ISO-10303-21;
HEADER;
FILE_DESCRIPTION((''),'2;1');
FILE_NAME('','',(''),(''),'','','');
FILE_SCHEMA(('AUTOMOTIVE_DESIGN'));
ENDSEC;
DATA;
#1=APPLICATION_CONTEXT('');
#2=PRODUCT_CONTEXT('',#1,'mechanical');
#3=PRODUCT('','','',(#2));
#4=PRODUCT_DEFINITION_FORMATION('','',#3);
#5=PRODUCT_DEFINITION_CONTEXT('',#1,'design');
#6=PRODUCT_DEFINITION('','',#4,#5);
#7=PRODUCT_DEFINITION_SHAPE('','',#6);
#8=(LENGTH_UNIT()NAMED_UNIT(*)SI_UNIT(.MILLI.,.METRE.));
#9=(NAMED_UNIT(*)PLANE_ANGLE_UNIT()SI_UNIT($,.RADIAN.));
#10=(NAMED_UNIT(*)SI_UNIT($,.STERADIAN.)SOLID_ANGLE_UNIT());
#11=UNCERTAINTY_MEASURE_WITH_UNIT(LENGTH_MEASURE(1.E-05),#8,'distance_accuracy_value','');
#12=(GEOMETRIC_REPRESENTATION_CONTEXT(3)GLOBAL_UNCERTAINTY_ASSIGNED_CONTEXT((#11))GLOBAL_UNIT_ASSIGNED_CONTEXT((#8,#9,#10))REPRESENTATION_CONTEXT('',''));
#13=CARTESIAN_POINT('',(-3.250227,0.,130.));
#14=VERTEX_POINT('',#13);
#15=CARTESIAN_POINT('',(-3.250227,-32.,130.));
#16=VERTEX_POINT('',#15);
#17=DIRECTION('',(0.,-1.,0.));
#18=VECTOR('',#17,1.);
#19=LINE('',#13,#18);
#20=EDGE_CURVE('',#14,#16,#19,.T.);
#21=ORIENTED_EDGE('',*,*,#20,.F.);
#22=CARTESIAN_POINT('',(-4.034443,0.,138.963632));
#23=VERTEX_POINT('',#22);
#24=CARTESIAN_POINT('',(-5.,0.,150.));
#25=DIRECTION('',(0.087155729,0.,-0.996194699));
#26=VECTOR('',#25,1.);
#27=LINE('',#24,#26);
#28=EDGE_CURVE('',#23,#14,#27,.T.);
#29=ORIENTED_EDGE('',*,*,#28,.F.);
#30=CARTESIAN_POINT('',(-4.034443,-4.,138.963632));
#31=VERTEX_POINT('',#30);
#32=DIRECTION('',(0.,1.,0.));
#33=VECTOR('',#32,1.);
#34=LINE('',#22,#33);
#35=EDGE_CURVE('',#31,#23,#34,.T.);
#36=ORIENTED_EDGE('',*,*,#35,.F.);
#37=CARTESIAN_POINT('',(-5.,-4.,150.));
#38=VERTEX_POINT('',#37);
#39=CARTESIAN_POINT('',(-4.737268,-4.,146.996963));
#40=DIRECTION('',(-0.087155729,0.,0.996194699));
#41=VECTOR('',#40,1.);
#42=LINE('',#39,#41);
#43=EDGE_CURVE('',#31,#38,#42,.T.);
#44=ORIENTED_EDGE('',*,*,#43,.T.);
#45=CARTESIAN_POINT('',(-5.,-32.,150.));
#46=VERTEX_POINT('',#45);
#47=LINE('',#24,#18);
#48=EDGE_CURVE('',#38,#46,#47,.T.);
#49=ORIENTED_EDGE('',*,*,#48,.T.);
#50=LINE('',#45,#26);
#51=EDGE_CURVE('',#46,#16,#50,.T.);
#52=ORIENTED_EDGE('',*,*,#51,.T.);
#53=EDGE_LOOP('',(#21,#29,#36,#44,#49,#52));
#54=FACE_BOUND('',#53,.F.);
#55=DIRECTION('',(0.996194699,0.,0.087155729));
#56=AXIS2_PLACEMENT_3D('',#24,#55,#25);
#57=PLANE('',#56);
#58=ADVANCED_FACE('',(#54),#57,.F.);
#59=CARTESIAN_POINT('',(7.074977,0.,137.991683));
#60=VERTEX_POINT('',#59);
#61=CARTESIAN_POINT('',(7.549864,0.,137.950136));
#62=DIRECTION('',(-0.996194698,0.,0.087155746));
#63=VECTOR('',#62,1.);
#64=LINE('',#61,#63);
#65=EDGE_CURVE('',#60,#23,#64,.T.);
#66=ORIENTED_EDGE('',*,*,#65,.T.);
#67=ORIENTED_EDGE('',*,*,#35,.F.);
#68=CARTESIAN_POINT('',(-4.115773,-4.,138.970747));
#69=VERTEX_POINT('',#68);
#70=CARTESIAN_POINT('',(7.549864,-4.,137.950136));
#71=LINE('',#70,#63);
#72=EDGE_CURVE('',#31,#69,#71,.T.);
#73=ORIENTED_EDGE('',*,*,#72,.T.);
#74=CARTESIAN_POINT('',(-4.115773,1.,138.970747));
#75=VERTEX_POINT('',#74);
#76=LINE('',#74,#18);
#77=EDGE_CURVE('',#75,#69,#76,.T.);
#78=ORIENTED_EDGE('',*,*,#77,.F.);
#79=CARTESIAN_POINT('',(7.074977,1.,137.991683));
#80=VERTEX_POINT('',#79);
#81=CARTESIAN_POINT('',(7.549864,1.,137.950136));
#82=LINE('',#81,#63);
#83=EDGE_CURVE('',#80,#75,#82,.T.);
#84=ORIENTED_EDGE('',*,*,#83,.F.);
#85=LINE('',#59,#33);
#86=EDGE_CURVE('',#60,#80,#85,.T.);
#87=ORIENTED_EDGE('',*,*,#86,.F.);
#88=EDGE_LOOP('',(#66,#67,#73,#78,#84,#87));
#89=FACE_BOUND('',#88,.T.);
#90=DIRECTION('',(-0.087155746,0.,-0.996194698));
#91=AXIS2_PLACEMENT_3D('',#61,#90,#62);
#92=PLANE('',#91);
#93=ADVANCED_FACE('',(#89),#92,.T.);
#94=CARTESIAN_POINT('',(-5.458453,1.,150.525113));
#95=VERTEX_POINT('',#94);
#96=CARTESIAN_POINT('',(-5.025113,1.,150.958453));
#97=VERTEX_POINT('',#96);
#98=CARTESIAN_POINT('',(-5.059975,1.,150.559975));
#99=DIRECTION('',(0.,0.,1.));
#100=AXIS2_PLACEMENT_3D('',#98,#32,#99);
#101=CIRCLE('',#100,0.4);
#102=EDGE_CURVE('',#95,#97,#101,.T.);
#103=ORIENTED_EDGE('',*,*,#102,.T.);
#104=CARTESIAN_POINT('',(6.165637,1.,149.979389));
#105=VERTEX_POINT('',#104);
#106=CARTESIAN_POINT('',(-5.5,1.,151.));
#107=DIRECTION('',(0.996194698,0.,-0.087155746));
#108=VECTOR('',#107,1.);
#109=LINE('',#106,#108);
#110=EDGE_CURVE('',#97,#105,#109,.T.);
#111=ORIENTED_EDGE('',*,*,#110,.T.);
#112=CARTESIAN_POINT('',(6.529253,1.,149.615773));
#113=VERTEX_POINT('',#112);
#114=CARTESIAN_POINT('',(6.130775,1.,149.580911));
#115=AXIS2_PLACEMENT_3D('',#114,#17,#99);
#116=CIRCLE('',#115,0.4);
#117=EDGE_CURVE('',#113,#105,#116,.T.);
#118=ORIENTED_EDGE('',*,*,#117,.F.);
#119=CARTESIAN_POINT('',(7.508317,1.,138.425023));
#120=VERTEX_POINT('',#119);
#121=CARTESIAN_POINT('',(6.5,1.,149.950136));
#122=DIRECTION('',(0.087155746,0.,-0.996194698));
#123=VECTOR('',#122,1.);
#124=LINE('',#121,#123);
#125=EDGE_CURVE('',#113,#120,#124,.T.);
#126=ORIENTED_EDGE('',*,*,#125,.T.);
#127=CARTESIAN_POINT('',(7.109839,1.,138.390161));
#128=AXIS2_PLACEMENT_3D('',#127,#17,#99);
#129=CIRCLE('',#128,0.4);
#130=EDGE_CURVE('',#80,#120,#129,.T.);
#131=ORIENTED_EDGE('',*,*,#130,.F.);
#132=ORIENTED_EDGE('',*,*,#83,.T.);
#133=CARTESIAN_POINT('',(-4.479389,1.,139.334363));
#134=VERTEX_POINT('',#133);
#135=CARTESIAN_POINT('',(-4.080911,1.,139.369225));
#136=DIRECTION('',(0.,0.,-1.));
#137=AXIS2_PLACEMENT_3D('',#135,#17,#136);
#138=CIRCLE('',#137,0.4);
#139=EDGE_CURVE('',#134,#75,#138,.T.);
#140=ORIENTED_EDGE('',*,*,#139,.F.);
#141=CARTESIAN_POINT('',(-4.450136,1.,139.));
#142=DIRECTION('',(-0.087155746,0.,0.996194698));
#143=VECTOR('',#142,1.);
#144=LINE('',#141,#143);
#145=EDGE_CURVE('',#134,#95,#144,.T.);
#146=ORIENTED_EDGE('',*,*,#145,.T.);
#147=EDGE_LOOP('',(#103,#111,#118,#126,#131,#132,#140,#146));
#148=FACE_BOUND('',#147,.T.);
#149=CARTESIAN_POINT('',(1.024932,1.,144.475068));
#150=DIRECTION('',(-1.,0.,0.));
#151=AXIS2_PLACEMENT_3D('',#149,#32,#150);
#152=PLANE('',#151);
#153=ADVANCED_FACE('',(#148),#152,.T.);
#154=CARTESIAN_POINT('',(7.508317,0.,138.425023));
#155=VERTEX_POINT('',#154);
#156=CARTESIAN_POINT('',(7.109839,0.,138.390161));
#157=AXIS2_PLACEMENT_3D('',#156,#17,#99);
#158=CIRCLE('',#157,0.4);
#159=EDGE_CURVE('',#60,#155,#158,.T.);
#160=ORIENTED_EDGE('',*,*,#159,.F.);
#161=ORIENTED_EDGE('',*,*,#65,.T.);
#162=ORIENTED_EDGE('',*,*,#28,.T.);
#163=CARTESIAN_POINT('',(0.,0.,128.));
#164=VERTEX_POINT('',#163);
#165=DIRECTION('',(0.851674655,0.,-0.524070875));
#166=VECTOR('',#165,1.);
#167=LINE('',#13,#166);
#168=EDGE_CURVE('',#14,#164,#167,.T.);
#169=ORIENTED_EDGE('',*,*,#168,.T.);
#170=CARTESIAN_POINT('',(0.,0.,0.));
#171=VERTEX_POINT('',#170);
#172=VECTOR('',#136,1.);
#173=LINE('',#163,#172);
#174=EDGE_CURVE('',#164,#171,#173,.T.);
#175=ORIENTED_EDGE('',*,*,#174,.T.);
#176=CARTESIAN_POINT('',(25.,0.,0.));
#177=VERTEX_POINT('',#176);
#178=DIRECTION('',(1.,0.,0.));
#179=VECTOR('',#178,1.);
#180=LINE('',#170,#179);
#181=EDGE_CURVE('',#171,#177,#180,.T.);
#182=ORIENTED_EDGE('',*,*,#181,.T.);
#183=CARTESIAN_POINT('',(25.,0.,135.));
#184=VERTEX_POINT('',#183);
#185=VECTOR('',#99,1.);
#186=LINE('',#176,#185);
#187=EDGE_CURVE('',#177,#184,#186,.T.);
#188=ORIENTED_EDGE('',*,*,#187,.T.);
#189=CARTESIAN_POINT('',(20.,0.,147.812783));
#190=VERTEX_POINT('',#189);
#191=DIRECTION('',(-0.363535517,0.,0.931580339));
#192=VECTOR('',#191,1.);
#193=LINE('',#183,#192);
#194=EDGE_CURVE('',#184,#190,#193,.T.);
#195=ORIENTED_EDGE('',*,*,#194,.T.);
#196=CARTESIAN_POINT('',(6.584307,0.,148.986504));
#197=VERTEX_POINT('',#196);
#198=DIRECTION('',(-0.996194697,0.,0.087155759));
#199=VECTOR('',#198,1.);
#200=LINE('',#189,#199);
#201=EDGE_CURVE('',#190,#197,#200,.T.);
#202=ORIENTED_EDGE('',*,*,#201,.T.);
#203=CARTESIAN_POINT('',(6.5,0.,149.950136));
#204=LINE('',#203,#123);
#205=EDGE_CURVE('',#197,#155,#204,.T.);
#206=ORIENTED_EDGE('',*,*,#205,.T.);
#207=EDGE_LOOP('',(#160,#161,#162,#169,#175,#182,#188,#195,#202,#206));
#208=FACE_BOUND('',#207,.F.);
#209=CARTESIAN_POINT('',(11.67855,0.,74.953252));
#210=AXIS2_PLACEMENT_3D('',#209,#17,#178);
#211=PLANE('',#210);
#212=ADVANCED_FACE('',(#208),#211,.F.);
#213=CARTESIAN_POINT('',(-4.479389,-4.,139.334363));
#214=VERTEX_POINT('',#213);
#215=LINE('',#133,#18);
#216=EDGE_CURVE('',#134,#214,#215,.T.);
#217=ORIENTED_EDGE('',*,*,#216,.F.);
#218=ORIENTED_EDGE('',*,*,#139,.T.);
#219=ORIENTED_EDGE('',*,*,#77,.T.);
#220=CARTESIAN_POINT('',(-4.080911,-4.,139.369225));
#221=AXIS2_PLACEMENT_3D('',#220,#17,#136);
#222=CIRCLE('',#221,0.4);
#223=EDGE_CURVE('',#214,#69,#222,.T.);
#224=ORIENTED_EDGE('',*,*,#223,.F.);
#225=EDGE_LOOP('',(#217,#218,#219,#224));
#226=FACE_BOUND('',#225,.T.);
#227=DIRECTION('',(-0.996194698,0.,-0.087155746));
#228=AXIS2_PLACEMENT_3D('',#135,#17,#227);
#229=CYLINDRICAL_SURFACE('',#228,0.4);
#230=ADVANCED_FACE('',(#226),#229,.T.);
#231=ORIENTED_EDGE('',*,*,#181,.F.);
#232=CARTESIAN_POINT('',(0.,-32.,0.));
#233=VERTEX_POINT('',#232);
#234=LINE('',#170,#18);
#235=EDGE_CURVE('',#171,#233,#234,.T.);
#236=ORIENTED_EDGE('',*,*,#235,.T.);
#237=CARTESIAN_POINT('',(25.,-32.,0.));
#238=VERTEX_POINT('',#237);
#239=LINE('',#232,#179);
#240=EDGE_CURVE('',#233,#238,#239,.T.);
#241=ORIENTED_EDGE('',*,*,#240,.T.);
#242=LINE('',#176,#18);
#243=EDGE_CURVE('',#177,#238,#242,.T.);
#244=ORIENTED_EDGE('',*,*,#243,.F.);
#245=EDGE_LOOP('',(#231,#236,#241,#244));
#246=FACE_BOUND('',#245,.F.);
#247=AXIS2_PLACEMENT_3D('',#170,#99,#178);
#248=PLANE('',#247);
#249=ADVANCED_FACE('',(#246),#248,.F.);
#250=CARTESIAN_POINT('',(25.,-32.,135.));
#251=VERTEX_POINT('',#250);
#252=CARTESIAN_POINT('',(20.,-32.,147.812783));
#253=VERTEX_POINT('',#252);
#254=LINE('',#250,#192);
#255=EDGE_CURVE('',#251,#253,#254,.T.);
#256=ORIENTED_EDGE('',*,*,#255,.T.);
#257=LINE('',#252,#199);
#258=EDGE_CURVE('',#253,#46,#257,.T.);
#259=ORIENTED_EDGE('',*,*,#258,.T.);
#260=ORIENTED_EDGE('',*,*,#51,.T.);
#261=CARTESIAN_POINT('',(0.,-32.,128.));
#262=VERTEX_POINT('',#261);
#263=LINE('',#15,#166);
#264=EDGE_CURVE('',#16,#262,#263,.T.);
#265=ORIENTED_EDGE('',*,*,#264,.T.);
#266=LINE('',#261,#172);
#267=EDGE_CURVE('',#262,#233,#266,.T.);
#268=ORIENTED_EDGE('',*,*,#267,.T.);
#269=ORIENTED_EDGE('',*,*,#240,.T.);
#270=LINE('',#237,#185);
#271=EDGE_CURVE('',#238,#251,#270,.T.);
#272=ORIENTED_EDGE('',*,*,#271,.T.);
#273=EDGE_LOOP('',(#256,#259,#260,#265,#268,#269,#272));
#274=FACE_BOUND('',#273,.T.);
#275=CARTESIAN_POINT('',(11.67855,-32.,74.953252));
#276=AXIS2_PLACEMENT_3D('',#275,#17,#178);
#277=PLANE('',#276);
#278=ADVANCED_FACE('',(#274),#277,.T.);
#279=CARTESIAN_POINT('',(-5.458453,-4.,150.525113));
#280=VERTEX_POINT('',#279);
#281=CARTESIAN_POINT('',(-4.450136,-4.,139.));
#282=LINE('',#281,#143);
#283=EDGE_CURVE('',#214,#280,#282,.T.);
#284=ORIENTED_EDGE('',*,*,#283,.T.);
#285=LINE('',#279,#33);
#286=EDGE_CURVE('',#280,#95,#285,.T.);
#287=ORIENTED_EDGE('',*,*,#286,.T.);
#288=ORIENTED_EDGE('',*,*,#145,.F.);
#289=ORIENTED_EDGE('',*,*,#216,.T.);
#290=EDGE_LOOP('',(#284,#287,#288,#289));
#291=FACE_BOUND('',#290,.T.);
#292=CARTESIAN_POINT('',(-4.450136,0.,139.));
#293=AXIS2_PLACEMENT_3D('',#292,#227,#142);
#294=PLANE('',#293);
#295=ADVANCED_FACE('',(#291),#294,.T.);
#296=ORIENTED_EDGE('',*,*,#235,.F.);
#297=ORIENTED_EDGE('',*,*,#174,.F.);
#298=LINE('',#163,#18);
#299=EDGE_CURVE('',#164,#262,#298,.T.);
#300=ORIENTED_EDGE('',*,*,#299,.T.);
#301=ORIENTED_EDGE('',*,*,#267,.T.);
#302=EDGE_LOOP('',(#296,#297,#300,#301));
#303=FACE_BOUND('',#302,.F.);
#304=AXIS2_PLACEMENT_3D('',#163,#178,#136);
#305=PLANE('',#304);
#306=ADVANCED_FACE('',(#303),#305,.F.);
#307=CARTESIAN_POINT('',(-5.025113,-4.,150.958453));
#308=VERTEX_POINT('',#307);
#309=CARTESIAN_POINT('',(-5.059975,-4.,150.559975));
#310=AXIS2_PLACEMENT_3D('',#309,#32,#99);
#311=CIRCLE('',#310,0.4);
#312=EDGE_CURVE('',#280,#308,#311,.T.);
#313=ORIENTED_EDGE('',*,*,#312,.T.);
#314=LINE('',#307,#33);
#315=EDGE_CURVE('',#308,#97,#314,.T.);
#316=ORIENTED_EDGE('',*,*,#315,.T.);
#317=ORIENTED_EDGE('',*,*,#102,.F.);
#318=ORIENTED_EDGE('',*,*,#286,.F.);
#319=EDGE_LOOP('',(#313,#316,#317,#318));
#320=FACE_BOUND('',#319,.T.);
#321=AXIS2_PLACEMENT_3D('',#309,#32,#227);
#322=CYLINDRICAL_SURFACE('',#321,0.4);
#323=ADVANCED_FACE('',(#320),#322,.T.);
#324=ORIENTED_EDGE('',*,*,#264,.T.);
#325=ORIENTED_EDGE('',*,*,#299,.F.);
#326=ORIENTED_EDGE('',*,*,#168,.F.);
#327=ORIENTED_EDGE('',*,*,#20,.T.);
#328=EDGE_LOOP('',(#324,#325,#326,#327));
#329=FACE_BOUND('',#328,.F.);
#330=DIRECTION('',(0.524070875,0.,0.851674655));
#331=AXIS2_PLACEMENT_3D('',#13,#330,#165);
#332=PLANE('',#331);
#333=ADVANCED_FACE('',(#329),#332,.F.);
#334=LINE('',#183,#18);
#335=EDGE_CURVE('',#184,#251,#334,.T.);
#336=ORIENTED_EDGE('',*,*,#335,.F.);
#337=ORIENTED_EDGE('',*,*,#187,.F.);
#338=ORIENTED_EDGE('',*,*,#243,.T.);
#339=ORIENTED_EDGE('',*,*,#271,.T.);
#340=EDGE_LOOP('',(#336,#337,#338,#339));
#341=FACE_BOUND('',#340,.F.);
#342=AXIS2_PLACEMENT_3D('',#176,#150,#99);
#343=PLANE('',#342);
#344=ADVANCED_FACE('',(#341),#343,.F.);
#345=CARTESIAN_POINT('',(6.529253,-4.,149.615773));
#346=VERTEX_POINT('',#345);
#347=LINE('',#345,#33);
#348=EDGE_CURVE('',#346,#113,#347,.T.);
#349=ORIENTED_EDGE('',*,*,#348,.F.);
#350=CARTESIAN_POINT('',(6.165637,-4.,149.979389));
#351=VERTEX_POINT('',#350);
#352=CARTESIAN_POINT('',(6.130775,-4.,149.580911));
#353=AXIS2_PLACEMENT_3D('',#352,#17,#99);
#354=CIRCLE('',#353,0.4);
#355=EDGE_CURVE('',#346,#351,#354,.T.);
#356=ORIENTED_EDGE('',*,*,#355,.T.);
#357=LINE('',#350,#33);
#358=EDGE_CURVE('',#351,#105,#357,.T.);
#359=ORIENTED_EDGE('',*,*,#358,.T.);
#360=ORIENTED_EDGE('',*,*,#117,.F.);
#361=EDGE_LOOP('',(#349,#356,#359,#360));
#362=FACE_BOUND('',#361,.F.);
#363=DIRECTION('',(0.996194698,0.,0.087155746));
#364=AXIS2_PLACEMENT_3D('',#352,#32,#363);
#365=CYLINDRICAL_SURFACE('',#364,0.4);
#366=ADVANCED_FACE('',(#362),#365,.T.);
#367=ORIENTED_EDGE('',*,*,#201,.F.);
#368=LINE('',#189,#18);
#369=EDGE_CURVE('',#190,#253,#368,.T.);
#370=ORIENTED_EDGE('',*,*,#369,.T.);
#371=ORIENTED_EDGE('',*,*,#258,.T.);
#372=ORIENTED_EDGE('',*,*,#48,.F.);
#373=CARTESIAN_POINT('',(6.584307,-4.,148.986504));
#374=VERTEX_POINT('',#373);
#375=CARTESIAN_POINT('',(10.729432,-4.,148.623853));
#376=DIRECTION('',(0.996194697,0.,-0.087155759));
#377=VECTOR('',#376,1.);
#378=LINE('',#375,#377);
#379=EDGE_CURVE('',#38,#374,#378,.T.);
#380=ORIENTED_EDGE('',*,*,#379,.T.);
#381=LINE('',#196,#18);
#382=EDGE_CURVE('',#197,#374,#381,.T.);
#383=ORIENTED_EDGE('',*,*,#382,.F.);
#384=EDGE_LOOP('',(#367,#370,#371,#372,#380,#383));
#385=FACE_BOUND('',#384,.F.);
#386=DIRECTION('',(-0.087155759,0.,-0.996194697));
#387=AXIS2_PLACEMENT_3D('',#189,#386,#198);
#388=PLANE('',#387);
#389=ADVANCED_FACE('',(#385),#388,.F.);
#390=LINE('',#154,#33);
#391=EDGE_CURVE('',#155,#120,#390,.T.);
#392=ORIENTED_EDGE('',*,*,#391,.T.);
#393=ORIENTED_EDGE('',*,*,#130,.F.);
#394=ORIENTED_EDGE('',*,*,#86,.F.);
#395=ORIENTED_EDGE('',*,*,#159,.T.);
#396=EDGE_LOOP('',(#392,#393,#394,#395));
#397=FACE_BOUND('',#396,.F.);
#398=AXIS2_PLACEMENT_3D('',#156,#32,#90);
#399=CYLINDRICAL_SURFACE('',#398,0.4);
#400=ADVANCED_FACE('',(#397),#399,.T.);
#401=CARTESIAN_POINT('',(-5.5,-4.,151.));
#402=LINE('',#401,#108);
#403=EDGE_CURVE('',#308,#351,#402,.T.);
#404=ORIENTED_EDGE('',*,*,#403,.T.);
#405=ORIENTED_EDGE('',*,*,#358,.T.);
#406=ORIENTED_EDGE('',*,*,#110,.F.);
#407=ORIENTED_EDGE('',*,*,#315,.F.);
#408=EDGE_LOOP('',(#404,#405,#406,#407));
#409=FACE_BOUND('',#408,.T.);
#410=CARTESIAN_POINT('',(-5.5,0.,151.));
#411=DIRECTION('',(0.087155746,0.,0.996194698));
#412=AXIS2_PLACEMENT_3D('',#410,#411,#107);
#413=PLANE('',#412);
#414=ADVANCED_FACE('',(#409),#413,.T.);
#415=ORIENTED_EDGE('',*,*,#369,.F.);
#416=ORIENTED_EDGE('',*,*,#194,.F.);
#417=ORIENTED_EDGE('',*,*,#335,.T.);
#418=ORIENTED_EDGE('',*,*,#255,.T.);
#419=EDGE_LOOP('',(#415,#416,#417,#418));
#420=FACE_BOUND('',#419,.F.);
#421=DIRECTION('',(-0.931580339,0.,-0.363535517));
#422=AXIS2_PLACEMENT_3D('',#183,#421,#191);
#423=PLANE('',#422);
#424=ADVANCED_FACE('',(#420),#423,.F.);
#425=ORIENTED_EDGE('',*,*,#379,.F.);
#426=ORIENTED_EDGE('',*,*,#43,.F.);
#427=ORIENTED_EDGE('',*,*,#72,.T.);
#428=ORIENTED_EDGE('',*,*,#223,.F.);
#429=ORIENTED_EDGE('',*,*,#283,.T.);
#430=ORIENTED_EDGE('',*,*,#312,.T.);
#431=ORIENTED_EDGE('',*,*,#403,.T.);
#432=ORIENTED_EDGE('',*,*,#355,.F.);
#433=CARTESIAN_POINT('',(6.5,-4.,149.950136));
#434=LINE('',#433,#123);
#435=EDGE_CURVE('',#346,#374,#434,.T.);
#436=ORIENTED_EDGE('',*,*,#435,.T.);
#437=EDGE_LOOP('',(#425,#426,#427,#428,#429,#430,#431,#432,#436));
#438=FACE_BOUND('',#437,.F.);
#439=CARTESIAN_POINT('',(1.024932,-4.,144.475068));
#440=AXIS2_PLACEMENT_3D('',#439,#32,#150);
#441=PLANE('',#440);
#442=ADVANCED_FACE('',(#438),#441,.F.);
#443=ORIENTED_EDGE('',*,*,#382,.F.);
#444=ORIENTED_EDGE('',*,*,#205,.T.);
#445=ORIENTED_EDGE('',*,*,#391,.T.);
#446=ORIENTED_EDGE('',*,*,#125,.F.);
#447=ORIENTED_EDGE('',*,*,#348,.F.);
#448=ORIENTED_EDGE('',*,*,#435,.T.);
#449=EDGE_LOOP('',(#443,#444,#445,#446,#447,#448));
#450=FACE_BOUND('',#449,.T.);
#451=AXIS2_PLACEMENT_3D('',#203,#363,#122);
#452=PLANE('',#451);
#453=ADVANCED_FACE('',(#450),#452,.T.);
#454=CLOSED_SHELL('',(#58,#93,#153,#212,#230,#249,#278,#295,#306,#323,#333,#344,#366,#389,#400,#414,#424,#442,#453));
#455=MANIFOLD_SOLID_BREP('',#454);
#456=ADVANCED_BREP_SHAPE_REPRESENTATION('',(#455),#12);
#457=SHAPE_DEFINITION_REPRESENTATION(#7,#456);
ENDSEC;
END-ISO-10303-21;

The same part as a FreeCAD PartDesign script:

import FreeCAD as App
import Part
import Sketcher
Q = App.Units.Quantity


def edges_at(feature, points):
    """Names of the edges that pass closest to the given points."""
    edges = feature.Shape.Edges
    near = lambda p: min(range(len(edges)), key=lambda i: edges[i].distToShape(Part.Vertex(*p))[0])
    return sorted({f"Edge{near(p) + 1}" for p in points})

doc = App.newDocument("Part")
body = doc.addObject("PartDesign::Body", "Body")

# Sketch on XZ plane
sketch1 = body.newObject("Sketcher::SketchObject", "Sketch")
sketch1.AttachmentSupport = (doc.getObject("XZ_Plane"), [""])
sketch1.MapMode = "FlatFace"
sketch1.addGeometry([
    Part.LineSegment(App.Vector(0, 128, 0), App.Vector(0, 0, 0)),  # 0
    Part.LineSegment(App.Vector(0, 0, 0), App.Vector(25, 0, 0)),  # 1
    Part.LineSegment(App.Vector(25, 0, 0), App.Vector(25, 135, 0)),  # 2
    Part.LineSegment(App.Vector(25, 135, 0), App.Vector(20, 147.8, 0)),  # 3
    Part.LineSegment(App.Vector(20, 147.8, 0), App.Vector(-5, 150, 0)),  # 4
    Part.LineSegment(App.Vector(-5, 150, 0), App.Vector(-3.3, 130, 0)),  # 5
    Part.LineSegment(App.Vector(-3.3, 130, 0), App.Vector(0, 128, 0)),  # 6
], False)
sketch1.addConstraint([
    Sketcher.Constraint("Coincident", 0, 2, 1, 1),
    Sketcher.Constraint("Coincident", 1, 2, 2, 1),
    Sketcher.Constraint("Coincident", 2, 2, 3, 1),
    Sketcher.Constraint("Coincident", 3, 2, 4, 1),
    Sketcher.Constraint("Coincident", 4, 2, 5, 1),
    Sketcher.Constraint("Coincident", 5, 2, 6, 1),
    Sketcher.Constraint("Coincident", 6, 2, 0, 1),
    Sketcher.Constraint("Vertical", 0),
    Sketcher.Constraint("Horizontal", 1),
    Sketcher.Constraint("Vertical", 2),
    Sketcher.Constraint("Coincident", 0, 2, -1, 1),
    Sketcher.Constraint("DistanceX", 1, 1, 1, 2, Q("25 mm")),
    Sketcher.Constraint("DistanceY", 0, 2, 0, 1, Q("128 mm")),
    Sketcher.Constraint("DistanceY", 2, 1, 2, 2, Q("135 mm")),
    Sketcher.Constraint("Angle", 4, Q("174.999999 deg")),
    Sketcher.Constraint("Angle", 5, Q("-85.000001 deg")),
    Sketcher.Constraint("DistanceX", -1, 1, 3, 2, Q("20 mm")),
    Sketcher.Constraint("DistanceX", 4, 2, -1, 1, Q("5 mm")),
    Sketcher.Constraint("DistanceY", -1, 1, 4, 2, Q("150 mm")),
    Sketcher.Constraint("DistanceY", -1, 1, 5, 2, Q("130 mm")),
])
pad1 = body.newObject("PartDesign::Pad", "Pad")
pad1.Profile = sketch1
pad1.Length = 32

# Sketch on XZ plane
sketch2 = body.newObject("Sketcher::SketchObject", "Sketch001")
sketch2.AttachmentSupport = (doc.getObject("XZ_Plane"), [""])
sketch2.MapMode = "FlatFace"
sketch2.addGeometry([
    Part.LineSegment(App.Vector(-4, 139, 0), App.Vector(-6, 151, 0)),
    Part.LineSegment(App.Vector(-6, 151, 0), App.Vector(6, 150, 0)),
    Part.LineSegment(App.Vector(6, 150, 0), App.Vector(8, 138, 0)),
    Part.LineSegment(App.Vector(8, 138, 0), App.Vector(-4, 139, 0)),
], False)
sketch2.addConstraint([
    Sketcher.Constraint("Coincident", 0, 2, 1, 1),
    Sketcher.Constraint("Coincident", 1, 2, 2, 1),
    Sketcher.Constraint("Coincident", 2, 2, 3, 1),
    Sketcher.Constraint("Coincident", 3, 2, 0, 1),
    Sketcher.Constraint("Parallel", 0, 2),
    Sketcher.Constraint("Parallel", 1, 3),
    Sketcher.Constraint("Equal", 0, 1),
    Sketcher.Constraint("Angle", 0, Q("95 deg")),
    Sketcher.Constraint("Angle", 1, Q("-5 deg")),
    Sketcher.Constraint("DistanceY", -1, 1, 0, 2, Q("151 mm")),
    Sketcher.Constraint("DistanceY", -1, 1, 3, 2, Q("139 mm")),
    Sketcher.Constraint("DistanceX", 0, 2, -1, 1, Q("5.5 mm")),
])
pad2 = body.newObject("PartDesign::Pad", "Pad001")
pad2.Profile = sketch2
pad2.Type = "TwoLengths"
pad2.Length = 1
pad2.Length2 = 4
pad2.Reversed = True
doc.recompute()

fillet = body.newObject("PartDesign::Fillet", "Fillet")
fillet.Base = (pad2, edges_at(pad2, [
    (-5.5, -1.5, 151),
    (6.5, -1.5, 149.95),
    (-4.45, -1.5, 139),
    (7.55, 0.5, 137.95),
]))
fillet.Radius = 0.4

doc.recompute()
